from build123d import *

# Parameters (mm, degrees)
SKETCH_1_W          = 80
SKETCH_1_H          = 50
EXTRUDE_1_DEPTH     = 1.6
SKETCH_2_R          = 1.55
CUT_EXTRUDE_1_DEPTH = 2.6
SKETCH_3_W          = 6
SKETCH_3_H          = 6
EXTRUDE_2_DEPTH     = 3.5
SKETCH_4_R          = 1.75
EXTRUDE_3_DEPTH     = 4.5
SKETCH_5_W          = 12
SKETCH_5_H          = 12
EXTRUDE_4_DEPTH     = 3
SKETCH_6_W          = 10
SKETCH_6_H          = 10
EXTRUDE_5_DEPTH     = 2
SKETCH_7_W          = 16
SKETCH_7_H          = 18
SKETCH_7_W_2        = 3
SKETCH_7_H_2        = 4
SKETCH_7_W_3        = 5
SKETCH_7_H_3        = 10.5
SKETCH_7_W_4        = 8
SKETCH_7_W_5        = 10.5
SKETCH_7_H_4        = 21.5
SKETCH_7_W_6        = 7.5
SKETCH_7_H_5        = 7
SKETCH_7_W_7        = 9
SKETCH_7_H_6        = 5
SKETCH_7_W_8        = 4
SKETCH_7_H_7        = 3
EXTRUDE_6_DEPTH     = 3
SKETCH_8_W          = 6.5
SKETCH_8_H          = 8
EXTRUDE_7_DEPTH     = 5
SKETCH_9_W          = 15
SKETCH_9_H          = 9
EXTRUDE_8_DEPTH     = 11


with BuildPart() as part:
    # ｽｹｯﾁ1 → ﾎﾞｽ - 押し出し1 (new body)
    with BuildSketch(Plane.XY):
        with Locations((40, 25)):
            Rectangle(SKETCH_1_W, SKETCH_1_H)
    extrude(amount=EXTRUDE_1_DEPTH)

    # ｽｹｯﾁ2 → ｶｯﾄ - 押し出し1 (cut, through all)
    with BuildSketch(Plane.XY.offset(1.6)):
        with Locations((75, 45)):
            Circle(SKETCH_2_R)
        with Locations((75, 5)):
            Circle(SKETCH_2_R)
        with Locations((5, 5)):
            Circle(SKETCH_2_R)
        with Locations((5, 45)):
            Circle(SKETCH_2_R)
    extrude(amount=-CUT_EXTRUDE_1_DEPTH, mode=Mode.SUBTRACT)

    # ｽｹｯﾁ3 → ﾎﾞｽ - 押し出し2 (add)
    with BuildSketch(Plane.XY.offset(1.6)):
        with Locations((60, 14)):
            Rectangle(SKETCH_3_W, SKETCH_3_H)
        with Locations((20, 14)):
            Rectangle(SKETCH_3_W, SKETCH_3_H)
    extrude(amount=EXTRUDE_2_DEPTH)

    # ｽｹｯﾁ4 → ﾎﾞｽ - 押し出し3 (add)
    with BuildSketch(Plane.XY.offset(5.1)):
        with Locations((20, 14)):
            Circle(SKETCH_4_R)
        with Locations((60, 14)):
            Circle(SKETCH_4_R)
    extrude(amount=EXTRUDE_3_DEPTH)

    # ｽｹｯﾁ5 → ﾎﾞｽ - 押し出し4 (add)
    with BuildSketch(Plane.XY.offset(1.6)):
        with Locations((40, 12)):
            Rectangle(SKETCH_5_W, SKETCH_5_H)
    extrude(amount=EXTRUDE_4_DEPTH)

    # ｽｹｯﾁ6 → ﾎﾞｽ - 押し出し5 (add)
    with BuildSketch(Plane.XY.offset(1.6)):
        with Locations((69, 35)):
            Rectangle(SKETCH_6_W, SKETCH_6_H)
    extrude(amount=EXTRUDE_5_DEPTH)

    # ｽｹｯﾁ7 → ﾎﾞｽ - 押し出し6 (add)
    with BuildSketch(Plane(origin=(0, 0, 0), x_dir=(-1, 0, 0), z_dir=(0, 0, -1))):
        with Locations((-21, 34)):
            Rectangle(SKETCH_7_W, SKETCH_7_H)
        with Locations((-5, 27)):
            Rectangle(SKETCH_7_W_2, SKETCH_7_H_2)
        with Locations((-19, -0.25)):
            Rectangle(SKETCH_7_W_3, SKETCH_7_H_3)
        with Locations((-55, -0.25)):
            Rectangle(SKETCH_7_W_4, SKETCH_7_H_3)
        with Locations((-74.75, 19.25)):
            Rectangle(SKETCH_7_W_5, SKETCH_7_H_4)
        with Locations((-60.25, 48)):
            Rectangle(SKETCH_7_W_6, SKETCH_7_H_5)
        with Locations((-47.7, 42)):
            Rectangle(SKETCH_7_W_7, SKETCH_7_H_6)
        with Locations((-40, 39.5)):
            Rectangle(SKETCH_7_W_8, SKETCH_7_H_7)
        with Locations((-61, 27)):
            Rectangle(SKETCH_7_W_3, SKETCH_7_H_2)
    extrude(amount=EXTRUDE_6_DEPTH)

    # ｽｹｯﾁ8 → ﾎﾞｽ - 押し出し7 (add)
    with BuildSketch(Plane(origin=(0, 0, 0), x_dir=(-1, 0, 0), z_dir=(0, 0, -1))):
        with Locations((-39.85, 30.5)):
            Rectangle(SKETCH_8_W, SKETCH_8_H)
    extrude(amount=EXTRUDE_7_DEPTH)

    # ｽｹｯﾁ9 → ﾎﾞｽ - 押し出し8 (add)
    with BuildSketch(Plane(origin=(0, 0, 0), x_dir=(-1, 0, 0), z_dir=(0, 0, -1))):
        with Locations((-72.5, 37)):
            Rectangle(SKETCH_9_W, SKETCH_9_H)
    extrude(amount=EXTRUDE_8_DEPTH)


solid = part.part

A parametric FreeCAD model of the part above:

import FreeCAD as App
import Part
import Sketcher
from FreeCAD import Vector


def add_polygon(sketch, points):
    """Adds a closed chain of lines whose ends are joined by coincident constraints."""
    first, n = sketch.GeometryCount, len(points)
    for a, b in zip(points, points[1:] + points[:1]):
        sketch.addGeometry(Part.LineSegment(App.Vector(*a, 0), App.Vector(*b, 0)), False)
    for i in range(n):
        sketch.addConstraint(Sketcher.Constraint("Coincident", first + i, 2, first + (i + 1) % n, 1))

doc = App.newDocument("Part")
body = doc.addObject("PartDesign::Body", "Body")

# Sketch on XY plane
sketch1 = doc.addObject("Sketcher::SketchObject", "Sketch")
body.addObject(sketch1)
sketch1.AttachmentSupport = (doc.XY_Plane, [""])
sketch1.MapMode = "FlatFace"
add_polygon(sketch1, [(0, 50), (0, 0), (80, 0), (80, 50)])  # lines 0-3
sketch1.addConstraint([
    Sketcher.Constraint("Vertical", 0),
    Sketcher.Constraint("Horizontal", 1),
    Sketcher.Constraint("Vertical", 2),
    Sketcher.Constraint("Horizontal", 3),
    Sketcher.Constraint("Coincident", 0, 2, -1, 1),
    Sketcher.Constraint("DistanceX", 1, 1, 1, 2, 80.0),
    Sketcher.Constraint("DistanceY", 0, 2, 0, 1, 50.0),
])
pad1 = doc.addObject("PartDesign::Pad", "Pad")
body.addObject(pad1)
pad1.Profile = sketch1
pad1.Length = 1.6

# Sketch on XY plane
sketch2 = doc.addObject("Sketcher::SketchObject", "Sketch001")
body.addObject(sketch2)
sketch2.AttachmentSupport = (doc.XY_Plane, [""])
sketch2.MapMode = "FlatFace"
sketch2.AttachmentOffset = App.Placement(Vector(0, 0, 1.6), App.Rotation())
sketch2.addGeometry([
    Part.Circle(Vector(75, 45, 0), Vector(0, 0, 1), 1.6),
    Part.Circle(Vector(75, 5, 0), Vector(0, 0, 1), 1.6),
    Part.Circle(Vector(5, 5, 0), Vector(0, 0, 1), 1.6),
    Part.Circle(Vector(5, 45, 0), Vector(0, 0, 1), 1.6),
], False)
sketch2.addConstraint([
    Sketcher.Constraint("Equal", 0, 1),
    Sketcher.Constraint("Equal", 1, 2),
    Sketcher.Constraint("Equal", 2, 3),
    Sketcher.Constraint("Horizontal", 1, 3, 2, 3),
    Sketcher.Constraint("Horizontal", 0, 3, 3, 3),
    Sketcher.Constraint("Vertical", 0, 3, 1, 3),
    Sketcher.Constraint("Vertical", 2, 3, 3, 3),
    Sketcher.Constraint("Diameter", 0, 3.1),
    Sketcher.Constraint("DistanceX", -1, 1, 0, 3, 75.0),
    Sketcher.Constraint("DistanceY", -1, 1, 0, 3, 45.0),
    Sketcher.Constraint("DistanceY", -1, 1, 1, 3, 5.0),
    Sketcher.Constraint("DistanceX", -1, 1, 2, 3, 5.0),
])
pocket1 = doc.addObject("PartDesign::Pocket", "Pocket")
body.addObject(pocket1)
pocket1.Profile = sketch2
pocket1.Type = "ThroughAll"

# Sketch on XY plane
sketch3 = doc.addObject("Sketcher::SketchObject", "Sketch002")
body.addObject(sketch3)
sketch3.AttachmentSupport = (doc.XY_Plane, [""])
sketch3.MapMode = "FlatFace"
sketch3.AttachmentOffset = App.Placement(Vector(0, 0, 1.6), App.Rotation())
add_polygon(sketch3, [(57, 17), (57, 11), (63, 11), (63, 17)])  # lines 0-3
add_polygon(sketch3, [(17, 17), (17, 11), (23, 11), (23, 17)])  # lines 4-7
sketch3.addConstraint([
    Sketcher.Constraint("Vertical", 0),
    Sketcher.Constraint("Horizontal", 1),
    Sketcher.Constraint("Vertical", 2),
    Sketcher.Constraint("Horizontal", 3),
    Sketcher.Constraint("Vertical", 4),
    Sketcher.Constraint("Horizontal", 5),
    Sketcher.Constraint("Vertical", 6),
    Sketcher.Constraint("Horizontal", 7),
    Sketcher.Constraint("Horizontal", 1, 2, 4, 2),
    Sketcher.Constraint("Horizontal", 3, 2, 6, 2),
    Sketcher.Constraint("Equal", 3, 5),
    Sketcher.Constraint("Equal", 7, 0),
    Sketcher.Constraint("DistanceX", 1, 1, 1, 2, 6.0),
    Sketcher.Constraint("DistanceX", -1, 1, 0, 2, 57.0),
    Sketcher.Constraint("DistanceY", -1, 1, 0, 2, 11.0),
    Sketcher.Constraint("DistanceX", -1, 1, 4, 2, 17.0),
])
pad2 = doc.addObject("PartDesign::Pad", "Pad001")
body.addObject(pad2)
pad2.Profile = sketch3
pad2.Length = 3.5

# Sketch on XY plane
sketch4 = doc.addObject("Sketcher::SketchObject", "Sketch003")
body.addObject(sketch4)
sketch4.AttachmentSupport = (doc.XY_Plane, [""])
sketch4.MapMode = "FlatFace"
sketch4.AttachmentOffset = App.Placement(Vector(0, 0, 5.1), App.Rotation())
sketch4.addGeometry([
    Part.Circle(Vector(20, 14, 0), Vector(0, 0, 1), 1.8),
    Part.Circle(Vector(60, 14, 0), Vector(0, 0, 1), 1.8),
], False)
sketch4.addConstraint([
    Sketcher.Constraint("Equal", 0, 1),
    Sketcher.Constraint("Horizontal", 0, 3, 1, 3),
    Sketcher.Constraint("Diameter", 0, 3.5),
    Sketcher.Constraint("DistanceX", -1, 1, 0, 3, 20.0),
    Sketcher.Constraint("DistanceY", -1, 1, 0, 3, 14.0),
    Sketcher.Constraint("DistanceX", -1, 1, 1, 3, 60.0),
])
pad3 = doc.addObject("PartDesign::Pad", "Pad002")
body.addObject(pad3)
pad3.Profile = sketch4
pad3.Length = 4.5

# Sketch on XY plane
sketch5 = doc.addObject("Sketcher::SketchObject", "Sketch004")
body.addObject(sketch5)
sketch5.AttachmentSupport = (doc.XY_Plane, [""])
sketch5.MapMode = "FlatFace"
sketch5.AttachmentOffset = App.Placement(Vector(0, 0, 1.6), App.Rotation())
add_polygon(sketch5, [(34, 18), (34, 6), (46, 6), (46, 18)])  # lines 0-3
sketch5.addConstraint([
    Sketcher.Constraint("Vertical", 0),
    Sketcher.Constraint("Horizontal", 1),
    Sketcher.Constraint("Vertical", 2),
    Sketcher.Constraint("Horizontal", 3),
    Sketcher.Constraint("Equal", 3, 0),
    Sketcher.Constraint("DistanceX", 1, 1, 1, 2, 12.0),
    Sketcher.Constraint("DistanceX", -1, 1, 0, 2, 34.0),
    Sketcher.Constraint("DistanceY", -1, 1, 0, 2, 6.0),
])
pad4 = doc.addObject("PartDesign::Pad", "Pad003")
body.addObject(pad4)
pad4.Profile = sketch5
pad4.Length = 3

# Sketch on XY plane
sketch6 = doc.addObject("Sketcher::SketchObject", "Sketch005")
body.addObject(sketch6)
sketch6.AttachmentSupport = (doc.XY_Plane, [""])
sketch6.MapMode = "FlatFace"
sketch6.AttachmentOffset = App.Placement(Vector(0, 0, 1.6), App.Rotation())
add_polygon(sketch6, [(64, 40), (64, 30), (74, 30), (74, 40)])  # lines 0-3
sketch6.addConstraint([
    Sketcher.Constraint("Vertical", 0),
    Sketcher.Constraint("Horizontal", 1),
    Sketcher.Constraint("Vertical", 2),
    Sketcher.Constraint("Horizontal", 3),
    Sketcher.Constraint("Equal", 3, 0),
    Sketcher.Constraint("DistanceX", 1, 1, 1, 2, 10.0),
    Sketcher.Constraint("DistanceX", -1, 1, 0, 2, 64.0),
    Sketcher.Constraint("DistanceY", -1, 1, 0, 2, 30.0),
])
pad5 = doc.addObject("PartDesign::Pad", "Pad004")
body.addObject(pad5)
pad5.Profile = sketch6
pad5.Length = 2

# Sketch on XY plane
sketch7 = doc.addObject("Sketcher::SketchObject", "Sketch006")
body.addObject(sketch7)
sketch7.AttachmentSupport = (doc.XY_Plane, [""])
sketch7.MapMode = "FlatFace"
add_polygon(sketch7, [(29, 43), (29, 25), (13, 25), (13, 43)])  # lines 0-3
add_polygon(sketch7, [(6.5, 29), (6.5, 25), (3.5, 25), (3.5, 29)])  # lines 4-7
add_polygon(sketch7, [(21.5, 5), (21.5, -5.5), (16.5, -5.5), (16.5, 5)])  # lines 8-11
add_polygon(sketch7, [(59, 5), (59, -5.5), (51, -5.5), (51, 5)])  # lines 12-15
add_polygon(sketch7, [(80, 30), (80, 8.5), (69.5, 8.5), (69.5, 30)])  # lines 16-19
add_polygon(sketch7, [(64, 51.5), (64, 44.5), (56.5, 44.5), (56.5, 51.5)])  # lines 20-23
add_polygon(sketch7, [(52.2, 44.5), (52.2, 39.5), (43.2, 39.5), (43.2, 44.5)])  # lines 24-27
add_polygon(sketch7, [(42, 41), (42, 38), (38, 38), (38, 41)])  # lines 28-31
add_polygon(sketch7, [(63.5, 29), (63.5, 25), (58.5, 25), (58.5, 29)])  # lines 32-35
sketch7.addConstraint([
    Sketcher.Constraint("Vertical", 0),
    Sketcher.Constraint("Horizontal", 1),
    Sketcher.Constraint("Vertical", 2),
    Sketcher.Constraint("Horizontal", 3),
    Sketcher.Constraint("Vertical", 4),
    Sketcher.Constraint("Horizontal", 5),
    Sketcher.Constraint("Vertical", 6),
    Sketcher.Constraint("Horizontal", 7),
    Sketcher.Constraint("Vertical", 8),
    Sketcher.Constraint("Horizontal", 9),
    Sketcher.Constraint("Vertical", 10),
    Sketcher.Constraint("Horizontal", 11),
    Sketcher.Constraint("Vertical", 12),
    Sketcher.Constraint("Horizontal", 13),
    Sketcher.Constraint("Vertical", 14),
    Sketcher.Constraint("Horizontal", 15),
    Sketcher.Constraint("Vertical", 16),
    Sketcher.Constraint("Horizontal", 17),
    Sketcher.Constraint("Vertical", 18),
    Sketcher.Constraint("Horizontal", 19),
    Sketcher.Constraint("Vertical", 20),
    Sketcher.Constraint("Horizontal", 21),
    Sketcher.Constraint("Vertical", 22),
    Sketcher.Constraint("Horizontal", 23),
    Sketcher.Constraint("Vertical", 24),
    Sketcher.Constraint("Horizontal", 25),
    Sketcher.Constraint("Vertical", 26),
    Sketcher.Constraint("Horizontal", 27),
    Sketcher.Constraint("Vertical", 28),
    Sketcher.Constraint("Horizontal", 29),
    Sketcher.Constraint("Vertical", 30),
    Sketcher.Constraint("Horizontal", 31),
    Sketcher.Constraint("Vertical", 32),
    Sketcher.Constraint("Horizontal", 33),
    Sketcher.Constraint("Vertical", 34),
    Sketcher.Constraint("Horizontal", 35),
    Sketcher.Constraint("Horizontal", 1, 2, 4, 2),
    Sketcher.Constraint("Horizontal", 9, 2, 12, 2),
    Sketcher.Constraint("Horizontal", 11, 2, 14, 2),
    Sketcher.Constraint("Horizontal", 21, 2, 26, 2),
    Sketcher.Constraint("Horizontal", 5, 2, 32, 2),
    Sketcher.Constraint("Horizontal", 7, 2, 34, 2),
    Sketcher.Constraint("Equal", 11, 33),
    Sketcher.Constraint("Equal", 31, 4),
    Sketcher.Constraint("Equal", 19, 8),
    Sketcher.Constraint("Equal", 35, 24),
    Sketcher.Constraint("Equal", 7, 28),
    Sketcher.Constraint("DistanceX", 1, 2, 1, 1, 16.0),
    Sketcher.Constraint("DistanceX", 5, 2, 5, 1, 3.0),
    Sketcher.Constraint("DistanceX", 9, 2, 9, 1, 5.0),
    Sketcher.Constraint("DistanceX", 13, 2, 13, 1, 8.0),
    Sketcher.Constraint("DistanceX", 25, 2, 25, 1, 9.0),
    Sketcher.Constraint("DistanceX", 29, 2, 29, 1, 4.0),
    Sketcher.Constraint("DistanceY", 0, 2, 0, 1, 18.0),
    Sketcher.Constraint("DistanceY", 20, 2, 20, 1, 7.0),
    Sketcher.Constraint("DistanceX", 17, 2, 17, 1, 10.5),
    Sketcher.Constraint("DistanceX", 21, 2, 21, 1, 7.5),
    Sketcher.Constraint("DistanceY", 16, 2, 16, 1, 21.5),
    Sketcher.Constraint("DistanceX", -1, 1, 0, 2, 29.0),
    Sketcher.Constraint("DistanceY", -1, 1, 0, 2, 25.0),
    Sketcher.Constraint("DistanceY", -1, 1, 10, 2, 5.0),
    Sketcher.Constraint("DistanceX", -1, 1, 12, 2, 59.0),
    Sketcher.Constraint("DistanceX", -1, 1, 16, 2, 80.0),
    Sketcher.Constraint("DistanceY", -1, 1, 18, 2, 30.0),
    Sketcher.Constraint("DistanceX", -1, 1, 20, 2, 64.0),
    Sketcher.Constraint("DistanceX", -1, 1, 28, 2, 42.0),
    Sketcher.Constraint("DistanceY", -1, 1, 28, 2, 38.0),
    Sketcher.Constraint("DistanceX", 4, 2, 8, 2, 15.0),
    Sketcher.Constraint("DistanceY", 17, 2, 20, 2, 36.0),
    Sketcher.Constraint("DistanceX", 32, 2, 18, 2, 6.0),
    Sketcher.Constraint("DistanceX", -1, 1, 4, 2, 6.5),
    Sketcher.Constraint("DistanceX", -1, 1, 24, 2, 52.2),
])
pad6 = doc.addObject("PartDesign::Pad", "Pad005")
body.addObject(pad6)
pad6.Profile = sketch7
pad6.Length = 3
pad6.Reversed = True

# Sketch on XY plane
sketch8 = doc.addObject("Sketcher::SketchObject", "Sketch007")
body.addObject(sketch8)
sketch8.AttachmentSupport = (doc.XY_Plane, [""])
sketch8.MapMode = "FlatFace"
add_polygon(sketch8, [(43, 34), (43, 26), (37, 26), (37, 34)])  # lines 0-3
sketch8.addConstraint([
    Sketcher.Constraint("Vertical", 0),
    Sketcher.Constraint("Horizontal", 1),
    Sketcher.Constraint("Vertical", 2),
    Sketcher.Constraint("Horizontal", 3),
    Sketcher.Constraint("DistanceY", 0, 2, 0, 1, 8.0),
    Sketcher.Constraint("DistanceX", 1, 2, 1, 1, 6.5),
    Sketcher.Constraint("DistanceX", -1, 1, 0, 2, 43.1),
    Sketcher.Constraint("DistanceY", -1, 1, 0, 2, 26.5),
])
pad7 = doc.addObject("PartDesign::Pad", "Pad006")
body.addObject(pad7)
pad7.Profile = sketch8
pad7.Length = 5
pad7.Reversed = True

# Sketch on XY plane
sketch9 = doc.addObject("Sketcher::SketchObject", "Sketch008")
body.addObject(sketch9)
sketch9.AttachmentSupport = (doc.XY_Plane, [""])
sketch9.MapMode = "FlatFace"
add_polygon(sketch9, [(80, 42), (80, 32), (65, 32), (65, 42)])  # lines 0-3
sketch9.addConstraint([
    Sketcher.Constraint("Vertical", 0),
    Sketcher.Constraint("Horizontal", 1),
    Sketcher.Constraint("Vertical", 2),
    Sketcher.Constraint("Horizontal", 3),
    Sketcher.Constraint("DistanceX", 1, 2, 1, 1, 15.0),
    Sketcher.Constraint("DistanceY", 0, 2, 0, 1, 9.0),
    Sketcher.Constraint("DistanceX", -1, 1, 0, 2, 80.0),
    Sketcher.Constraint("DistanceY", -1, 1, 0, 2, 32.5),
])
pad8 = doc.addObject("PartDesign::Pad", "Pad007")
body.addObject(pad8)
pad8.Profile = sketch9
pad8.Length = 11
pad8.Reversed = True

doc.recompute()
